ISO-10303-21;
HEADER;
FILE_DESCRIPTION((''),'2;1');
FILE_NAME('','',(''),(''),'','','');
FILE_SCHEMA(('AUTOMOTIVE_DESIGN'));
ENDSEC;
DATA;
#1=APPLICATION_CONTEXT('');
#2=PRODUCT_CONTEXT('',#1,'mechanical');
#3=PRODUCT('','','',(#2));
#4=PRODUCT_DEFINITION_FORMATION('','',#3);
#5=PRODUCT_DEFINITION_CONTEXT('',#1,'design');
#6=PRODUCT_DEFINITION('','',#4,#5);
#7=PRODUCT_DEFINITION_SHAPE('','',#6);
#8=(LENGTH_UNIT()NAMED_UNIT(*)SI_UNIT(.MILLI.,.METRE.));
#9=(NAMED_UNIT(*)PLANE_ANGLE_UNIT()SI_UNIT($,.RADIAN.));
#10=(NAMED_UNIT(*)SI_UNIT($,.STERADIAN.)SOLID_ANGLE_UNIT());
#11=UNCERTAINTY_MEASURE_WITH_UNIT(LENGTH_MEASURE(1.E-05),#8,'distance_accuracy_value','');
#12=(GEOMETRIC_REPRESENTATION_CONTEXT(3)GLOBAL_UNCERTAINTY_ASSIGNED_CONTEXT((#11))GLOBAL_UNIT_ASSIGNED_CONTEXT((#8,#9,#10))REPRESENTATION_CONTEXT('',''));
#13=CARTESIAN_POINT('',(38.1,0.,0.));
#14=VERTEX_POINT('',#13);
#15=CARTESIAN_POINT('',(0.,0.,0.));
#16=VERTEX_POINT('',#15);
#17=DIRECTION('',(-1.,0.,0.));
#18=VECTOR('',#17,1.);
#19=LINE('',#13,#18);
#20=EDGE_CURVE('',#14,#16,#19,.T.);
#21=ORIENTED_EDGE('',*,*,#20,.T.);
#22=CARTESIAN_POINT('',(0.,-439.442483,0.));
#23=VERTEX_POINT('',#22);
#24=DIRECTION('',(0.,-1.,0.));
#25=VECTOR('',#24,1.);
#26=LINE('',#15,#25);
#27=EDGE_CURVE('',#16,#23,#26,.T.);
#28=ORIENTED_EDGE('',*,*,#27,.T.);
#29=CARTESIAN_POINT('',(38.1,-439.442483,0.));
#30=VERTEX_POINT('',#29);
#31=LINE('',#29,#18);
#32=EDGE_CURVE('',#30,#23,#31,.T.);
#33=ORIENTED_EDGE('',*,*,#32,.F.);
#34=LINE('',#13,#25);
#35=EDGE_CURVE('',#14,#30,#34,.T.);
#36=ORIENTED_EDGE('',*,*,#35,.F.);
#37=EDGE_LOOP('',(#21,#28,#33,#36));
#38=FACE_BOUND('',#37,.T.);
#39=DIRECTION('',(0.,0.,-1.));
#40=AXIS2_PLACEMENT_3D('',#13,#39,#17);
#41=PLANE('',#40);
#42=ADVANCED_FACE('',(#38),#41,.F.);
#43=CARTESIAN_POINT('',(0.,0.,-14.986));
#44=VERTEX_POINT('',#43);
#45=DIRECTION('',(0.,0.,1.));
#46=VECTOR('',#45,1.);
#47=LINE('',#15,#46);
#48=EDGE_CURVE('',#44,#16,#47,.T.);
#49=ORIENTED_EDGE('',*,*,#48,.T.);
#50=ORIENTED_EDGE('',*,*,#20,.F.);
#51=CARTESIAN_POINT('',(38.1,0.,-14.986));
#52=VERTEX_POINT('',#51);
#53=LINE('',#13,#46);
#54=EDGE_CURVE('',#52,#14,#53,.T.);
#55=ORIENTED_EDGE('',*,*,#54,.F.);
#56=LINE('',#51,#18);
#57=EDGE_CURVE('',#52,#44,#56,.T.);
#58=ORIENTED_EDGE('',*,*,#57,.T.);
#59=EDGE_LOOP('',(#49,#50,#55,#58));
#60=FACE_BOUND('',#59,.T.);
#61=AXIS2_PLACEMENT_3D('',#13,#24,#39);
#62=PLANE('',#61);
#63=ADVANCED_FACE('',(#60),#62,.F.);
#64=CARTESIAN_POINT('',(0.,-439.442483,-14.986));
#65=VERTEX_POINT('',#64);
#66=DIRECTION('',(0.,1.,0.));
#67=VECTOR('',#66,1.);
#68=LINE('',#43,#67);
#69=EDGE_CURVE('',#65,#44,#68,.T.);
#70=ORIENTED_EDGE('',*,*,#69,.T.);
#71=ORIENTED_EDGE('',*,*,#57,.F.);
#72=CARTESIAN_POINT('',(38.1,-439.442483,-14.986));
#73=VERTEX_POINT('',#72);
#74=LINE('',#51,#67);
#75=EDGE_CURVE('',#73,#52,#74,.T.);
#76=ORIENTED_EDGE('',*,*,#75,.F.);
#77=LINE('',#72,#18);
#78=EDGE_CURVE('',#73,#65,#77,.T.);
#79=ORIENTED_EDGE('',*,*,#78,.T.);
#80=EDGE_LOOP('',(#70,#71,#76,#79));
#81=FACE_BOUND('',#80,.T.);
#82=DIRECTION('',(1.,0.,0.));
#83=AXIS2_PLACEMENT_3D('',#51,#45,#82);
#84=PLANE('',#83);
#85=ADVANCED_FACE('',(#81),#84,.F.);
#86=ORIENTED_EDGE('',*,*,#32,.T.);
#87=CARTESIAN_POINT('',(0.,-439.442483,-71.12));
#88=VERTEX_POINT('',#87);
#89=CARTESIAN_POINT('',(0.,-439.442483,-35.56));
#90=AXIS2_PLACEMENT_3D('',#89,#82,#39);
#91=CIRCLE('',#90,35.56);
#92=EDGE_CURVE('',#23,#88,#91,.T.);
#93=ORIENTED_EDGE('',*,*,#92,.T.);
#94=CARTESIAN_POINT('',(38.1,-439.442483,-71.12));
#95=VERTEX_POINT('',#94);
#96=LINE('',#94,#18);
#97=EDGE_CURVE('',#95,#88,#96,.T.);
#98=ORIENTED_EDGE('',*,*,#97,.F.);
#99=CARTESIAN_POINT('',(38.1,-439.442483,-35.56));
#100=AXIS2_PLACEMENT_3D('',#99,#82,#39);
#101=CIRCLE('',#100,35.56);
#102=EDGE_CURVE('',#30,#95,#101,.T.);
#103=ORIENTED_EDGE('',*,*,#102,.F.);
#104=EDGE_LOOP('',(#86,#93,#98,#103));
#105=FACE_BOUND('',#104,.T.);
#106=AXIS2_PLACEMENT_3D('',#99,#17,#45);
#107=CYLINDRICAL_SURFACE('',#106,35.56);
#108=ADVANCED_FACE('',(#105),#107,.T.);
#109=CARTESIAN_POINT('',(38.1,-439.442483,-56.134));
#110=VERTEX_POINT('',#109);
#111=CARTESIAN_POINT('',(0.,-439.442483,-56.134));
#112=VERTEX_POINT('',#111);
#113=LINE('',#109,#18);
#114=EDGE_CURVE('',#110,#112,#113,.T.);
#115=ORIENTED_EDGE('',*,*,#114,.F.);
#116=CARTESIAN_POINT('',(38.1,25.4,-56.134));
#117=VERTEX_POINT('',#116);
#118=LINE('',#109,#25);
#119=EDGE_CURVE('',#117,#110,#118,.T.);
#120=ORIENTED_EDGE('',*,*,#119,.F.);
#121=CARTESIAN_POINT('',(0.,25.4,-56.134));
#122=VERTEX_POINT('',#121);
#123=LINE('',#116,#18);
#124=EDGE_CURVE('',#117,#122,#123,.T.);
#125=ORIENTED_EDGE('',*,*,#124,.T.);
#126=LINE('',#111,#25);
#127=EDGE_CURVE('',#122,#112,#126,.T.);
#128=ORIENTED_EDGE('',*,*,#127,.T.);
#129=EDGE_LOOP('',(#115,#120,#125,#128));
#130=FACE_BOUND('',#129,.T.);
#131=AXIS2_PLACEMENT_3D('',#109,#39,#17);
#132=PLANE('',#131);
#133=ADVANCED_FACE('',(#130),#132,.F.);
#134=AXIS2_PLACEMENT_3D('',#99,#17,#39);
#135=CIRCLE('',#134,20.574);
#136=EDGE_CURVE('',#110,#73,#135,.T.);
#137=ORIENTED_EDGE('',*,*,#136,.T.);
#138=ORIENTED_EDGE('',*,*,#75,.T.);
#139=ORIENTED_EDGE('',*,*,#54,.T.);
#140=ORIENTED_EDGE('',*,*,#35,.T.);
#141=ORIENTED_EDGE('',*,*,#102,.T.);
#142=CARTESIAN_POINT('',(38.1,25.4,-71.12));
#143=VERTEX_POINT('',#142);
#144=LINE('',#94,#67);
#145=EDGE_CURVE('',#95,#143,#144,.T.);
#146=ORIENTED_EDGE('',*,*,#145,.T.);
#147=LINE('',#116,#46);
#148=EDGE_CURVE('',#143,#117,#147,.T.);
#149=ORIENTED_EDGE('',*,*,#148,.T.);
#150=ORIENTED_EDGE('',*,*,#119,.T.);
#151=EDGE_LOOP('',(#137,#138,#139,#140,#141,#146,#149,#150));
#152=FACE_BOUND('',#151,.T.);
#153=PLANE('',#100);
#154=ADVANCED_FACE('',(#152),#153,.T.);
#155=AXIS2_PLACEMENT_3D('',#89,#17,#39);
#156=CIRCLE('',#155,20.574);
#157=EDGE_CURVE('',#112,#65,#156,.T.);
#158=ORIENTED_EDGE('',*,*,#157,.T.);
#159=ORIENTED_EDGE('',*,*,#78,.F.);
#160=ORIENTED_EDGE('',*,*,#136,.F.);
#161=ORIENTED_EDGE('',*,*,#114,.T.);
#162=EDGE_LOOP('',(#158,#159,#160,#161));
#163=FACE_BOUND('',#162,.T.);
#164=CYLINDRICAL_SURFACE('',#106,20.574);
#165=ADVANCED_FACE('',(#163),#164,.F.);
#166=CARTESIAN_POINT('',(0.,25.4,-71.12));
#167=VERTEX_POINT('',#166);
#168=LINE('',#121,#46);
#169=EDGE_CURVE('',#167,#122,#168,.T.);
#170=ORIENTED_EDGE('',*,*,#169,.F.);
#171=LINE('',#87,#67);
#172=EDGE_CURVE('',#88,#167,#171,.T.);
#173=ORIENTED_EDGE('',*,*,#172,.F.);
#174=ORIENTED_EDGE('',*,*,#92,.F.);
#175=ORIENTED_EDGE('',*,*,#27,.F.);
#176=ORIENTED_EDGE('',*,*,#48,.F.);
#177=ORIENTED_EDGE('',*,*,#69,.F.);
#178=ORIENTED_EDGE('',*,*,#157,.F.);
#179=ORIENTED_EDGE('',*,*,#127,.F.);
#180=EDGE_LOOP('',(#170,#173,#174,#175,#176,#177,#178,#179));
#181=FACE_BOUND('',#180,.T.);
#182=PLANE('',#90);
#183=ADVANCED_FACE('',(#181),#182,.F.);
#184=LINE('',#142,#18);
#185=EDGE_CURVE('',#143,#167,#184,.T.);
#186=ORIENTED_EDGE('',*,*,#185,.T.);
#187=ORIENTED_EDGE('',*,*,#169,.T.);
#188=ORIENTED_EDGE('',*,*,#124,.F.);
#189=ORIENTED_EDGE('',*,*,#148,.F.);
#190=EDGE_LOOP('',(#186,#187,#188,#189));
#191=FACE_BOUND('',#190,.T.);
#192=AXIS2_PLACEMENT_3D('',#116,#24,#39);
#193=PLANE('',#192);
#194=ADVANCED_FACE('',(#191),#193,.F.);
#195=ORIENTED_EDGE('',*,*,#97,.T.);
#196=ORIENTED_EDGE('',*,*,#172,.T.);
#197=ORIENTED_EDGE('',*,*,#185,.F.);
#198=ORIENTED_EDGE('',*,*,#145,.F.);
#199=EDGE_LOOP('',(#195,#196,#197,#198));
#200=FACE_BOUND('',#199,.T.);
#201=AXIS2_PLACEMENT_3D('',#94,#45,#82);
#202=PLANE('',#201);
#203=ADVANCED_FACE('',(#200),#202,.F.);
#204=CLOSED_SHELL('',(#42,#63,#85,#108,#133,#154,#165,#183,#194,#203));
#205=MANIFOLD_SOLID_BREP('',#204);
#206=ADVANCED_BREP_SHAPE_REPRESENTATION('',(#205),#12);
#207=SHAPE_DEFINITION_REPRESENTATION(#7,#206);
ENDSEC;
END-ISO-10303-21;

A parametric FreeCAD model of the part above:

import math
import FreeCAD as App
import Part
import Sketcher
from FreeCAD import Vector
Q = App.Units.Quantity

doc = App.newDocument("Part")
body = doc.addObject("PartDesign::Body", "Body")

# Sketch on YZ plane
sketch1 = body.newObject("Sketcher::SketchObject", "Sketch")
sketch1.AttachmentSupport = (doc.getObject("YZ_Plane"), [""])
sketch1.MapMode = "FlatFace"
sketch1.addGeometry(Part.LineSegment(Vector(0, 0, 0), Vector(-439, 0, 0)), False)
sketch1.addGeometry(Part.ArcOfCircle(Part.Circle(Vector(-439, -36, 0), Vector(0, 0, 1), 36), math.radians(90), math.radians(270)), False)
sketch1.addGeometry(Part.LineSegment(Vector(-439, -71, 0), Vector(25, -71, 0)), False)
sketch1.addGeometry(Part.LineSegment(Vector(25, -71, 0), Vector(25, -56, 0)), False)
sketch1.addGeometry(Part.LineSegment(Vector(25, -56, 0), Vector(-439, -56, 0)), False)
sketch1.addGeometry(Part.ArcOfCircle(Part.Circle(Vector(-439, -36, 0), Vector(0, 0, 1), 21), math.radians(90), math.radians(270)), False)
sketch1.addGeometry(Part.LineSegment(Vector(-439, -15, 0), Vector(0, -15, 0)), False)
sketch1.addGeometry(Part.LineSegment(Vector(0, -15, 0), Vector(0, 0, 0)), False)
sketch1.addConstraint(Sketcher.Constraint("Tangent", 0, 2, 1, 1))
sketch1.addConstraint(Sketcher.Constraint("Tangent", 1, 2, 2, 1))
sketch1.addConstraint(Sketcher.Constraint("Coincident", 2, 2, 3, 1))
sketch1.addConstraint(Sketcher.Constraint("Coincident", 3, 2, 4, 1))
sketch1.addConstraint(Sketcher.Constraint("Tangent", 4, 2, 5, 2))
sketch1.addConstraint(Sketcher.Constraint("Tangent", 5, 1, 6, 1))
sketch1.addConstraint(Sketcher.Constraint("Coincident", 6, 2, 7, 1))
sketch1.addConstraint(Sketcher.Constraint("Coincident", 7, 2, 0, 1))
sketch1.addConstraint(Sketcher.Constraint("Horizontal", 0))
sketch1.addConstraint(Sketcher.Constraint("Horizontal", 2))
sketch1.addConstraint(Sketcher.Constraint("Vertical", 3))
sketch1.addConstraint(Sketcher.Constraint("Horizontal", 4))
sketch1.addConstraint(Sketcher.Constraint("Horizontal", 6))
sketch1.addConstraint(Sketcher.Constraint("Vertical", 7))
sketch1.addConstraint(Sketcher.Constraint("Coincident", 7, 2, -1, 1))
sketch1.addConstraint(Sketcher.Constraint("Coincident", 5, 3, 1, 3))
sketch1.addConstraint(Sketcher.Constraint("Radius", 1, Q("1.4 in")))
sketch1.addConstraint(Sketcher.Constraint("Radius", 5, Q("0.81 in")))
sketch1.addConstraint(Sketcher.Constraint("DistanceX", -1, 1, 2, 2, Q("1 in")))
sketch1.addConstraint(Sketcher.Constraint("DistanceX", 0, 2, 0, 1, 439.442483))
pad1 = body.newObject("PartDesign::Pad", "Pad")
pad1.Profile = sketch1
pad1.Length = Q("1.5 in")

doc.recompute()
